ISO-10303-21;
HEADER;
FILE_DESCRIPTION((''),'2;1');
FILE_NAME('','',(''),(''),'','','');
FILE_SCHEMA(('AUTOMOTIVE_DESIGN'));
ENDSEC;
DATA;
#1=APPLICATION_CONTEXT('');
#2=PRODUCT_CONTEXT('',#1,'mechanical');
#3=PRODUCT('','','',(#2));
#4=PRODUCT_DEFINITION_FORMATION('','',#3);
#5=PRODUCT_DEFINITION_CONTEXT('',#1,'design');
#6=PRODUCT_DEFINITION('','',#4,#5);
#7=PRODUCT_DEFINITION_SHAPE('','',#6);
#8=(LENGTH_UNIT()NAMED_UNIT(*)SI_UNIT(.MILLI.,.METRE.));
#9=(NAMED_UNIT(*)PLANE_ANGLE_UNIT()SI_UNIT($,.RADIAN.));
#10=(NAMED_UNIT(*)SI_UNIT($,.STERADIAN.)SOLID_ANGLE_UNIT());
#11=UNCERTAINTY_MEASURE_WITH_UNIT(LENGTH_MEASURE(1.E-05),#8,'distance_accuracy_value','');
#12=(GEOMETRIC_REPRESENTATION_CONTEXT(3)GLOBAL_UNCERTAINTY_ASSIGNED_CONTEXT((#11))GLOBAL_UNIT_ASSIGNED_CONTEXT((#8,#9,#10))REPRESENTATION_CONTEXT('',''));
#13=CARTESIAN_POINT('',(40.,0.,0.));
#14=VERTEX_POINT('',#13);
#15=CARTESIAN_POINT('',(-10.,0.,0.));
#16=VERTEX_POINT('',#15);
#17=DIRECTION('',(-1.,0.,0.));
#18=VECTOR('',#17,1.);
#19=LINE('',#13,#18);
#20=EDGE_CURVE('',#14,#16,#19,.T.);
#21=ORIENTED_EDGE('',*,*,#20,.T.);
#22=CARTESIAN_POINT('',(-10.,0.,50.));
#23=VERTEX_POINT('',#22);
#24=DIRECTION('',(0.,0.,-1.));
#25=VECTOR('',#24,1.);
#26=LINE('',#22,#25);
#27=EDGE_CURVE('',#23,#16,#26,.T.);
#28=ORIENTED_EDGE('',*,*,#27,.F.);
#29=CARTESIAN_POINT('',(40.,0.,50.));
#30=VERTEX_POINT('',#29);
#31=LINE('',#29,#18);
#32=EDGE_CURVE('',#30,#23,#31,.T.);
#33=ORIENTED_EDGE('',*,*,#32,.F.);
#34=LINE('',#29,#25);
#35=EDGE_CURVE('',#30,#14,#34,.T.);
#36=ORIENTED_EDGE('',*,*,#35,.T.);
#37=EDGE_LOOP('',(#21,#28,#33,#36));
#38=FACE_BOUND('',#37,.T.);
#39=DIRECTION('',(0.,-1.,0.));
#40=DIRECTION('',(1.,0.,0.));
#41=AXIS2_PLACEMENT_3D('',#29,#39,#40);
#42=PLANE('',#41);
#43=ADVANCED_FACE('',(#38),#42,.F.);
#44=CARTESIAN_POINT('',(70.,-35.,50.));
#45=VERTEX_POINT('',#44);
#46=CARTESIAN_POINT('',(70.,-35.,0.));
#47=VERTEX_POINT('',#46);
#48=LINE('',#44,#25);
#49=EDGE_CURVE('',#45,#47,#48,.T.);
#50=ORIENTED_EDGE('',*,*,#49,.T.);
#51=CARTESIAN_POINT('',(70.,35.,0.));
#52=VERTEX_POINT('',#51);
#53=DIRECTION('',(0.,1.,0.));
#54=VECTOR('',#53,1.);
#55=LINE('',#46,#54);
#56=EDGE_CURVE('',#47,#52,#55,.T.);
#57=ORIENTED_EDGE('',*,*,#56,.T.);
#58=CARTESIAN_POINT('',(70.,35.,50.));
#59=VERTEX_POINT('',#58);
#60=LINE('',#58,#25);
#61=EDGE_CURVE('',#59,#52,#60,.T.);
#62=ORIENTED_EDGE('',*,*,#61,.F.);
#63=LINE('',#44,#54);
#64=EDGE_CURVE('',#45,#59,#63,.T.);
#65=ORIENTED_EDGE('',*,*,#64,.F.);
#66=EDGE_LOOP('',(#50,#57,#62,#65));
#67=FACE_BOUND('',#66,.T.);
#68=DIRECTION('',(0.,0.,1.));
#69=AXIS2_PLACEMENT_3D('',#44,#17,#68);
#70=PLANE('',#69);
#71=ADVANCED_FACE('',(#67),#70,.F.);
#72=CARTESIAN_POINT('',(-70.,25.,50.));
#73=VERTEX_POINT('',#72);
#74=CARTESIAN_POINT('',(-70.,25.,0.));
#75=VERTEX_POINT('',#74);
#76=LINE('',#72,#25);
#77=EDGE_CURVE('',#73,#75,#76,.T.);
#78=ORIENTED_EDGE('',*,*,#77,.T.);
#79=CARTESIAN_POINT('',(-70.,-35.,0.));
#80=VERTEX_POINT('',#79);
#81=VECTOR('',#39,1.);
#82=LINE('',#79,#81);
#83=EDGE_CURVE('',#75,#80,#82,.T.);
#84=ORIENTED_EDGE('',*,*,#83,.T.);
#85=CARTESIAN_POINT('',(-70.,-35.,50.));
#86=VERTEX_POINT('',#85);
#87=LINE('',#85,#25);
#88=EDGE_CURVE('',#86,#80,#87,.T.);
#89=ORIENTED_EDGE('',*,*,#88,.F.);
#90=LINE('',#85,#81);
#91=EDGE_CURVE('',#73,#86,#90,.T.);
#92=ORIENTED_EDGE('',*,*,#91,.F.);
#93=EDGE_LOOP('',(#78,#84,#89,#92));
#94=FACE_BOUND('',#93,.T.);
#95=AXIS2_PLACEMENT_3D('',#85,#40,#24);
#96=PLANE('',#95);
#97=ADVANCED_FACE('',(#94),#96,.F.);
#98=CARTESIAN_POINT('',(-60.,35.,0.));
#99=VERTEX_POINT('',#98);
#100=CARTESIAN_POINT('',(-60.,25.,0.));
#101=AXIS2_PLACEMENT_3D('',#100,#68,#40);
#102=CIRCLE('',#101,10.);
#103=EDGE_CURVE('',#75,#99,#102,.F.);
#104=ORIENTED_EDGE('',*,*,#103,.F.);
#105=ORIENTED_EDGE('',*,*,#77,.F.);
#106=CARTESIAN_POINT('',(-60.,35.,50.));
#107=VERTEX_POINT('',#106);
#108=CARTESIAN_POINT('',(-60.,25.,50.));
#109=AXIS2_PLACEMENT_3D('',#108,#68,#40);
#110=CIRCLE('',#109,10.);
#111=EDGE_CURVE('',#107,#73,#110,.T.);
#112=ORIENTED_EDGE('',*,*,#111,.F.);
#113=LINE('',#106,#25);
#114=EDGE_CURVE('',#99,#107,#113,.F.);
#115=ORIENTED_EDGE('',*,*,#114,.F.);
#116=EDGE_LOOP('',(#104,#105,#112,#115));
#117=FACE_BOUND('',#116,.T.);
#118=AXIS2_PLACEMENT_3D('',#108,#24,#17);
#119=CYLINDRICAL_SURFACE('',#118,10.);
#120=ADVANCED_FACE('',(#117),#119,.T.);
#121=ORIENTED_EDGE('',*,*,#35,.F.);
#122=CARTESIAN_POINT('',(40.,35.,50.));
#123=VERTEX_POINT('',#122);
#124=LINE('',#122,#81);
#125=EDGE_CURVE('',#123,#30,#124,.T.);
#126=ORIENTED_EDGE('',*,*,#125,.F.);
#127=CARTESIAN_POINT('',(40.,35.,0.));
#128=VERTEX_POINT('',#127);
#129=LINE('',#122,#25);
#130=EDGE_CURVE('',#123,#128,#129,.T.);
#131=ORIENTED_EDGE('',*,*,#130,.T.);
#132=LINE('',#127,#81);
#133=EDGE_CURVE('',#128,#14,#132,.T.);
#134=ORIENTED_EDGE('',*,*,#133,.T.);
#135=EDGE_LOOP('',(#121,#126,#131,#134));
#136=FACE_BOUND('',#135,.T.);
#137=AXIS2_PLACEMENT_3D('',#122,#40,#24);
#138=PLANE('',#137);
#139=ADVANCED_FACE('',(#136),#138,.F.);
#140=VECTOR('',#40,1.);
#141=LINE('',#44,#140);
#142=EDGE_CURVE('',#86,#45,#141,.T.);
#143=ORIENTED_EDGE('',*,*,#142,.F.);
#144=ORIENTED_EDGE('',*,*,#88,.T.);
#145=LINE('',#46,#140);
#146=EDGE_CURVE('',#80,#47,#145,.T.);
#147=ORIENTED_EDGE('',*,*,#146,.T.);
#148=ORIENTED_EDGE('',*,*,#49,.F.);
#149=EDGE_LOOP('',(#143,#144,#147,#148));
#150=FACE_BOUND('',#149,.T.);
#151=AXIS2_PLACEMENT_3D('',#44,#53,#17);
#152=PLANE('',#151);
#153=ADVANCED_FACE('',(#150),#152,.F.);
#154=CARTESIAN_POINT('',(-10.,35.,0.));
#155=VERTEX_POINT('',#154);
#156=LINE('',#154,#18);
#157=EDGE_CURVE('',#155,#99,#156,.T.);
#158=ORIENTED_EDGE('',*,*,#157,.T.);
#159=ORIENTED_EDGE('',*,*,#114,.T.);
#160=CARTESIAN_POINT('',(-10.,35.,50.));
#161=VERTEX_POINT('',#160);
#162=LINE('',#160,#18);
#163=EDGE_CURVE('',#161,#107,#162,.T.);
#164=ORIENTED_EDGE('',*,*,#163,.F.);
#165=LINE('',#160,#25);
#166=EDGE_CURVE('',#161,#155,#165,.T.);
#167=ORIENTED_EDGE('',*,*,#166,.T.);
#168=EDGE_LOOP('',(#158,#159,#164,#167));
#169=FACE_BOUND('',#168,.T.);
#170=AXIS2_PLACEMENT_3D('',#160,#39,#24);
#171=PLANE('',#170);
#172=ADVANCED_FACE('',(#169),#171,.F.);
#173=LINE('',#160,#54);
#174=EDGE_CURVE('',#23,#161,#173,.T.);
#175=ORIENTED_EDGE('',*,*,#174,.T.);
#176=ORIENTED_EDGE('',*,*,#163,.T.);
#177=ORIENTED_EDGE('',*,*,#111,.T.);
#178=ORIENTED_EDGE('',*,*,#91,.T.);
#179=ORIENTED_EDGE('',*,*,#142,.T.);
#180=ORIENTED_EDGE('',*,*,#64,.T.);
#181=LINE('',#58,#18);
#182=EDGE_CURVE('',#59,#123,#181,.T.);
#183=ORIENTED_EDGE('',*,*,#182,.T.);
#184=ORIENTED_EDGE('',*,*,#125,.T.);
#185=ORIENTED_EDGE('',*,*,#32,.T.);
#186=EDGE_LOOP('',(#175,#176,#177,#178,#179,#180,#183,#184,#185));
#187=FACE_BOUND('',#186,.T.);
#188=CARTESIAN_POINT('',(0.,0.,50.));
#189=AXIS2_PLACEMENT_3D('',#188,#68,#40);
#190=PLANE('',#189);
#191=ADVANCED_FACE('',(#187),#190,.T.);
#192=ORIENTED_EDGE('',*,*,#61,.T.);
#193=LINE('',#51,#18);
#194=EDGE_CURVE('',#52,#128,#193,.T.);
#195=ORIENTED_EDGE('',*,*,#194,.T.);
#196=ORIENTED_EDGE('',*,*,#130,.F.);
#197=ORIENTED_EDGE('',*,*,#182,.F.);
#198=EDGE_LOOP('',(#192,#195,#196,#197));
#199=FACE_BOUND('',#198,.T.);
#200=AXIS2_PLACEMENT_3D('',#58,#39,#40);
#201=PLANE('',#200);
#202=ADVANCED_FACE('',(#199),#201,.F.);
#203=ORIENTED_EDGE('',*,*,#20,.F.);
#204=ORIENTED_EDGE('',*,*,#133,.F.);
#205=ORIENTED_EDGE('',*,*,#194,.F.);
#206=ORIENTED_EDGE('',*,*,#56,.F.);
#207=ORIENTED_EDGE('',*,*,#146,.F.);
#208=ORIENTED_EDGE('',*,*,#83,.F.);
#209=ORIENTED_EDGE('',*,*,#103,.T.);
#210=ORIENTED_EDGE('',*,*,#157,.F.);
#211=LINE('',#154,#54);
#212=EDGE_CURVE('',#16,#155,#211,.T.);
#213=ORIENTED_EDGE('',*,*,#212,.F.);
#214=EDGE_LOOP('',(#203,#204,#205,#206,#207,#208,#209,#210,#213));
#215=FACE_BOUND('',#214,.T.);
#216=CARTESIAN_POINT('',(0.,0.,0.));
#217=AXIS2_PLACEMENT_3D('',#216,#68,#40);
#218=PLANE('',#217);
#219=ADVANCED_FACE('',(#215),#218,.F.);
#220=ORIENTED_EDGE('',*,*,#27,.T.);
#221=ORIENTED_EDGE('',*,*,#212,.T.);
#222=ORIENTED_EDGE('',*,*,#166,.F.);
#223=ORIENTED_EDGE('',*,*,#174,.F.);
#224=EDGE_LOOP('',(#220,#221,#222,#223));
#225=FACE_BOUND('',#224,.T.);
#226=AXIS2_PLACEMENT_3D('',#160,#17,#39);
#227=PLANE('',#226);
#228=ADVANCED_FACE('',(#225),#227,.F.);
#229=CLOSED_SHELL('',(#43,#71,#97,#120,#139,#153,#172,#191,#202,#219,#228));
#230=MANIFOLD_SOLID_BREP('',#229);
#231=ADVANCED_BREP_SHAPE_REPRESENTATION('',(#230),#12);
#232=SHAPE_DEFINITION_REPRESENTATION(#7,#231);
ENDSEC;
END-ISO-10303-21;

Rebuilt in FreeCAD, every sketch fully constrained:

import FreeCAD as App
import Part
import Sketcher


def edges_at(feature, points):
    """Names of the edges that pass closest to the given points."""
    edges = feature.Shape.Edges
    near = lambda p: min(range(len(edges)), key=lambda i: edges[i].distToShape(Part.Vertex(*p))[0])
    return sorted({f"Edge{near(p) + 1}" for p in points})


def add_polygon(sketch, points):
    """Adds a closed chain of lines whose ends are joined by coincident constraints."""
    first, n = sketch.GeometryCount, len(points)
    for a, b in zip(points, points[1:] + points[:1]):
        sketch.addGeometry(Part.LineSegment(App.Vector(*a, 0), App.Vector(*b, 0)), False)
    for i in range(n):
        sketch.addConstraint(Sketcher.Constraint("Coincident", first + i, 2, first + (i + 1) % n, 1))

doc = App.newDocument("Part")
params = doc.addObject("Spreadsheet::Sheet", "Params")
for row, (alias, value) in enumerate([
    ("sketch1_width", "60 mm"),
    ("sketch1_width2", "140 mm"),
    ("sketch1_width3", "30 mm"),
    ("sketch1_height", "70 mm"),
    ("pad1_length", "50 mm"),
    ("fillet_radius", "10 mm"),
], start=1):
    params.set(f"A{row}", alias)
    params.set(f"B{row}", "=" + value)
    params.setAlias(f"B{row}", alias)

body = doc.addObject("PartDesign::Body", "Body")

sketch1 = body.newObject("Sketcher::SketchObject", "Sketch")
sketch1.AttachmentSupport = (doc.getObject("XY_Plane"), [""])
sketch1.MapMode = "FlatFace"
add_polygon(sketch1, [(-10, 35), (-70, 35), (-70, -35), (70, -35), (70, 35), (40, 35), (40, 0), (-10, 0)])
sketch1.addConstraint([
    Sketcher.Constraint("Horizontal", 0),
    Sketcher.Constraint("Vertical", 1),
    Sketcher.Constraint("Horizontal", 2),
    Sketcher.Constraint("Vertical", 3),
    Sketcher.Constraint("Horizontal", 4),
    Sketcher.Constraint("Vertical", 5),
    Sketcher.Constraint("Horizontal", 6),
    Sketcher.Constraint("Vertical", 7),
    Sketcher.Constraint("Symmetric", 0, 2, 2, 2, -1, 1),
    Sketcher.Constraint("PointOnObject", 5, 2, -1),
    Sketcher.Constraint("Horizontal", 0, 2, 3, 2),
    Sketcher.Constraint("DistanceX", 0, 2, 0, 1, 60.0),
    Sketcher.Constraint("DistanceX", 2, 1, 2, 2, 140.0),
    Sketcher.Constraint("DistanceX", 4, 2, 4, 1, 30.0),
    Sketcher.Constraint("DistanceY", 1, 2, 1, 1, 70.0),
])
sketch1.setExpression("Constraints[19]", "Params.sketch1_width")
sketch1.setExpression("Constraints[20]", "Params.sketch1_width2")
sketch1.setExpression("Constraints[21]", "Params.sketch1_width3")
sketch1.setExpression("Constraints[22]", "Params.sketch1_height")
pad1 = body.newObject("PartDesign::Pad", "Pad")
pad1.Profile = sketch1
pad1.setExpression("Length", "Params.pad1_length")
doc.recompute()

fillet = body.newObject("PartDesign::Fillet", "Fillet")
fillet.Base = (pad1, edges_at(pad1, [(-70, 35, 25)]))
fillet.setExpression("Radius", "Params.fillet_radius")

doc.recompute()
